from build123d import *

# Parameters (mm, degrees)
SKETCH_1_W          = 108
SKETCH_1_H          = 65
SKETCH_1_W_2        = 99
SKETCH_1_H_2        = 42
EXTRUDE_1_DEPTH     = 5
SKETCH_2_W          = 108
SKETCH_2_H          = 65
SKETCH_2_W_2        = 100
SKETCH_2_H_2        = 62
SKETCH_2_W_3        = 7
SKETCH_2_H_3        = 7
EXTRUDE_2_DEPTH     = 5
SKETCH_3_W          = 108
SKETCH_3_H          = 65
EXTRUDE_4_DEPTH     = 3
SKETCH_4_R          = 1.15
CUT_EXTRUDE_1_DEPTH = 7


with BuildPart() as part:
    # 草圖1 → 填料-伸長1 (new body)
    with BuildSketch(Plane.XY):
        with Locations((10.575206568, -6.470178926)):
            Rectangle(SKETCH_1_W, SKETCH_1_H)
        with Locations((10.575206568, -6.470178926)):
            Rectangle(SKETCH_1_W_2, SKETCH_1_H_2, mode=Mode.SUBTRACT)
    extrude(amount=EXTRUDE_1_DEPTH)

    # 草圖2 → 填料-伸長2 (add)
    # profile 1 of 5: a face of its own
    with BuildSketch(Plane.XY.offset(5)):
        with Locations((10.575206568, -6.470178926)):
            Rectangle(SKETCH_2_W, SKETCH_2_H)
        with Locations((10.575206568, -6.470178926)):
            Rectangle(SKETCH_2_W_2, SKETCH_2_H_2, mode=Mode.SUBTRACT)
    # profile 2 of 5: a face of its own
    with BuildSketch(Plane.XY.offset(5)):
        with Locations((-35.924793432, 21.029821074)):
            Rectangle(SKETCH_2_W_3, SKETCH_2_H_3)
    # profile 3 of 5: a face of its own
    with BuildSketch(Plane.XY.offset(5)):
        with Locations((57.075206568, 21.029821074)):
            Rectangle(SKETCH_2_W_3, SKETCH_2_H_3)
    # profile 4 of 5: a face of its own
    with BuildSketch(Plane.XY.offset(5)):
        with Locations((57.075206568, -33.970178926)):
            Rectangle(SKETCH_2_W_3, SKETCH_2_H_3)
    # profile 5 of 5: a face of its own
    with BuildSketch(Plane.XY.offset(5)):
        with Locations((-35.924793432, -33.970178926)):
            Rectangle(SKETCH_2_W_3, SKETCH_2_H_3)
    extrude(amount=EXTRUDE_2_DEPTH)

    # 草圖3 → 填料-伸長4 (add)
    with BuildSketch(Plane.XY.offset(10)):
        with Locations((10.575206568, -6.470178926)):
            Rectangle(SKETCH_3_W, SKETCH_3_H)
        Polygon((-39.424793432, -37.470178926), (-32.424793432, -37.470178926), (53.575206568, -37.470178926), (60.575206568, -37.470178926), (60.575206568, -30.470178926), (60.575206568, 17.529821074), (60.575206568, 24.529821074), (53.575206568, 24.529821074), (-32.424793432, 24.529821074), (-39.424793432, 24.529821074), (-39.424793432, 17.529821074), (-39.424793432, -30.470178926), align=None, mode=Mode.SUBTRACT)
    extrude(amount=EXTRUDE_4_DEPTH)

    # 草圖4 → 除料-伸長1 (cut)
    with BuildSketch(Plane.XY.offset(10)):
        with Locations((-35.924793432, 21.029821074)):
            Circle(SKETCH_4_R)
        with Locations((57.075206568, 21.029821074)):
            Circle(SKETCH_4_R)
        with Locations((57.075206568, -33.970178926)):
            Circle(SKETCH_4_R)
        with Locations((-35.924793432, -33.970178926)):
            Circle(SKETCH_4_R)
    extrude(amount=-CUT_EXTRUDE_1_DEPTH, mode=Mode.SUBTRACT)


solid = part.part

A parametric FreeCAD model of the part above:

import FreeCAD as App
import Part
import Sketcher
Q = App.Units.Quantity

doc = App.newDocument("Part")
body = doc.addObject("PartDesign::Body", "Body")

# Sketch on XY plane
sketch1 = body.newObject("Sketcher::SketchObject", "Sketch")
sketch1.AttachmentSupport = (doc.getObject("XY_Plane"), [""])
sketch1.MapMode = "FlatFace"
sketch1.addGeometry([
    Part.LineSegment(App.Vector(-43.424793, 26.029821, 0), App.Vector(-43.424793, -38.970179, 0)),  # 0
    Part.LineSegment(App.Vector(-43.424793, -38.970179, 0), App.Vector(64.575207, -38.970179, 0)),  # 1
    Part.LineSegment(App.Vector(64.575207, -38.970179, 0), App.Vector(64.575207, 26.029821, 0)),  # 2
    Part.LineSegment(App.Vector(64.575207, 26.029821, 0), App.Vector(-43.424793, 26.029821, 0)),  # 3
    Part.LineSegment(App.Vector(60.075207, -27.470179, 0), App.Vector(-38.924793, -27.470179, 0)),  # 4
    Part.LineSegment(App.Vector(-38.924793, -27.470179, 0), App.Vector(-38.924793, 14.529821, 0)),  # 5
    Part.LineSegment(App.Vector(-38.924793, 14.529821, 0), App.Vector(60.075207, 14.529821, 0)),  # 6
    Part.LineSegment(App.Vector(60.075207, 14.529821, 0), App.Vector(60.075207, -27.470179, 0)),  # 7
], False)
sketch1.addConstraint([
    Sketcher.Constraint("Coincident", 0, 2, 1, 1),
    Sketcher.Constraint("Coincident", 1, 2, 2, 1),
    Sketcher.Constraint("Coincident", 2, 2, 3, 1),
    Sketcher.Constraint("Coincident", 3, 2, 0, 1),
    Sketcher.Constraint("Coincident", 4, 2, 5, 1),
    Sketcher.Constraint("Coincident", 5, 2, 6, 1),
    Sketcher.Constraint("Coincident", 6, 2, 7, 1),
    Sketcher.Constraint("Coincident", 7, 2, 4, 1),
    Sketcher.Constraint("Vertical", 0),
    Sketcher.Constraint("Horizontal", 1),
    Sketcher.Constraint("Vertical", 2),
    Sketcher.Constraint("Horizontal", 3),
    Sketcher.Constraint("Horizontal", 4),
    Sketcher.Constraint("Vertical", 5),
    Sketcher.Constraint("Horizontal", 6),
    Sketcher.Constraint("Vertical", 7),
    Sketcher.Constraint("DistanceX", 1, 1, 1, 2, Q("108 mm")),
    Sketcher.Constraint("DistanceX", 4, 2, 4, 1, Q("99 mm")),
    Sketcher.Constraint("DistanceY", 0, 2, 0, 1, Q("65 mm")),
    Sketcher.Constraint("DistanceY", 5, 1, 5, 2, Q("42 mm")),
    Sketcher.Constraint("DistanceX", 0, 2, 4, 2, Q("4.5 mm")),
    Sketcher.Constraint("DistanceY", 0, 2, 4, 2, Q("11.5 mm")),
    Sketcher.Constraint("DistanceY", 0, 2, -1, 1, Q("38.970179 mm")),
    Sketcher.Constraint("DistanceX", 0, 2, -1, 1, Q("43.424793 mm")),
])
pad1 = body.newObject("PartDesign::Pad", "Pad")
pad1.Profile = sketch1
pad1.Length = 5

# Sketch on XY plane
sketch2 = body.newObject("Sketcher::SketchObject", "Sketch001")
sketch2.AttachmentSupport = (doc.getObject("XY_Plane"), [""])
sketch2.MapMode = "FlatFace"
sketch2.AttachmentOffset = App.Placement(App.Vector(0, 0, 5), App.Rotation())
sketch2.addGeometry([
    Part.LineSegment(App.Vector(-43.424793, 26.029821, 0), App.Vector(-43.424793, -38.970179, 0)),  # 0
    Part.LineSegment(App.Vector(-43.424793, -38.970179, 0), App.Vector(64.575207, -38.970179, 0)),  # 1
    Part.LineSegment(App.Vector(64.575207, -38.970179, 0), App.Vector(64.575207, 26.029821, 0)),  # 2
    Part.LineSegment(App.Vector(64.575207, 26.029821, 0), App.Vector(-43.424793, 26.029821, 0)),  # 3
    Part.LineSegment(App.Vector(53.575207, -37.470179, 0), App.Vector(-32.424793, -37.470179, 0)),  # 4
    Part.LineSegment(App.Vector(-32.424793, -37.470179, 0), App.Vector(-32.424793, -30.470179, 0)),  # 5
    Part.LineSegment(App.Vector(-32.424793, -30.470179, 0), App.Vector(-39.424793, -30.470179, 0)),  # 6
    Part.LineSegment(App.Vector(-39.424793, -30.470179, 0), App.Vector(-39.424793, 17.529821, 0)),  # 7
    Part.LineSegment(App.Vector(-39.424793, 17.529821, 0), App.Vector(-32.424793, 17.529821, 0)),  # 8
    Part.LineSegment(App.Vector(-32.424793, 17.529821, 0), App.Vector(-32.424793, 24.529821, 0)),  # 9
    Part.LineSegment(App.Vector(-32.424793, 24.529821, 0), App.Vector(53.575207, 24.529821, 0)),  # 10
    Part.LineSegment(App.Vector(53.575207, 24.529821, 0), App.Vector(53.575207, 17.529821, 0)),  # 11
    Part.LineSegment(App.Vector(53.575207, 17.529821, 0), App.Vector(60.575207, 17.529821, 0)),  # 12
    Part.LineSegment(App.Vector(60.575207, 17.529821, 0), App.Vector(60.575207, -30.470179, 0)),  # 13
    Part.LineSegment(App.Vector(60.575207, -30.470179, 0), App.Vector(53.575207, -30.470179, 0)),  # 14
    Part.LineSegment(App.Vector(53.575207, -30.470179, 0), App.Vector(53.575207, -37.470179, 0)),  # 15
], False)
sketch2.addConstraint([
    Sketcher.Constraint("Coincident", 0, 2, 1, 1),
    Sketcher.Constraint("Coincident", 1, 2, 2, 1),
    Sketcher.Constraint("Coincident", 2, 2, 3, 1),
    Sketcher.Constraint("Coincident", 3, 2, 0, 1),
    Sketcher.Constraint("Coincident", 4, 2, 5, 1),
    Sketcher.Constraint("Coincident", 5, 2, 6, 1),
    Sketcher.Constraint("Coincident", 6, 2, 7, 1),
    Sketcher.Constraint("Coincident", 7, 2, 8, 1),
    Sketcher.Constraint("Coincident", 8, 2, 9, 1),
    Sketcher.Constraint("Coincident", 9, 2, 10, 1),
    Sketcher.Constraint("Coincident", 10, 2, 11, 1),
    Sketcher.Constraint("Coincident", 11, 2, 12, 1),
    Sketcher.Constraint("Coincident", 12, 2, 13, 1),
    Sketcher.Constraint("Coincident", 13, 2, 14, 1),
    Sketcher.Constraint("Coincident", 14, 2, 15, 1),
    Sketcher.Constraint("Coincident", 15, 2, 4, 1),
    Sketcher.Constraint("Vertical", 0),
    Sketcher.Constraint("Horizontal", 1),
    Sketcher.Constraint("Vertical", 2),
    Sketcher.Constraint("Horizontal", 3),
    Sketcher.Constraint("Horizontal", 4),
    Sketcher.Constraint("Vertical", 5),
    Sketcher.Constraint("Horizontal", 6),
    Sketcher.Constraint("Vertical", 7),
    Sketcher.Constraint("Horizontal", 8),
    Sketcher.Constraint("Vertical", 9),
    Sketcher.Constraint("Horizontal", 10),
    Sketcher.Constraint("Vertical", 11),
    Sketcher.Constraint("Horizontal", 12),
    Sketcher.Constraint("Vertical", 13),
    Sketcher.Constraint("Horizontal", 14),
    Sketcher.Constraint("Vertical", 15),
    Sketcher.Constraint("Horizontal", 8, 2, 11, 2),
    Sketcher.Constraint("Horizontal", 6, 2, 13, 2),
    Sketcher.Constraint("Vertical", 5, 2, 8, 2),
    Sketcher.Constraint("Vertical", 11, 2, 14, 2),
    Sketcher.Constraint("Equal", 8, 12),
    Sketcher.Constraint("Equal", 14, 5),
    Sketcher.Constraint("Equal", 5, 9),
    Sketcher.Constraint("DistanceX", 1, 1, 1, 2, Q("108 mm")),
    Sketcher.Constraint("DistanceX", 4, 2, 4, 1, Q("86 mm")),
    Sketcher.Constraint("DistanceX", 6, 2, 6, 1, Q("7 mm")),
    Sketcher.Constraint("DistanceY", 0, 2, 0, 1, Q("65 mm")),
    Sketcher.Constraint("DistanceY", 7, 1, 7, 2, Q("48 mm")),
    Sketcher.Constraint("DistanceX", 0, 2, 4, 2, Q("11 mm")),
    Sketcher.Constraint("DistanceY", 0, 2, 4, 2, Q("1.5 mm")),
    Sketcher.Constraint("DistanceY", 0, 2, -1, 1, Q("38.970179 mm")),
    Sketcher.Constraint("DistanceX", 0, 2, -1, 1, Q("43.424793 mm")),
])
pad2 = body.newObject("PartDesign::Pad", "Pad001")
pad2.Profile = sketch2
pad2.Length = 5

# Sketch on XY plane
sketch3 = body.newObject("Sketcher::SketchObject", "Sketch002")
sketch3.AttachmentSupport = (doc.getObject("XY_Plane"), [""])
sketch3.MapMode = "FlatFace"
sketch3.AttachmentOffset = App.Placement(App.Vector(0, 0, 10), App.Rotation())
sketch3.addGeometry([
    Part.LineSegment(App.Vector(-43.424793, 26.029821, 0), App.Vector(-43.424793, -38.970179, 0)),  # 0
    Part.LineSegment(App.Vector(-43.424793, -38.970179, 0), App.Vector(64.575207, -38.970179, 0)),  # 1
    Part.LineSegment(App.Vector(64.575207, -38.970179, 0), App.Vector(64.575207, 26.029821, 0)),  # 2
    Part.LineSegment(App.Vector(64.575207, 26.029821, 0), App.Vector(-43.424793, 26.029821, 0)),  # 3
    Part.LineSegment(App.Vector(60.575207, -37.470179, 0), App.Vector(-39.424793, -37.470179, 0)),  # 4
    Part.LineSegment(App.Vector(-39.424793, -37.470179, 0), App.Vector(-39.424793, 24.529821, 0)),  # 5
    Part.LineSegment(App.Vector(-39.424793, 24.529821, 0), App.Vector(60.575207, 24.529821, 0)),  # 6
    Part.LineSegment(App.Vector(60.575207, 24.529821, 0), App.Vector(60.575207, -37.470179, 0)),  # 7
], False)
sketch3.addConstraint([
    Sketcher.Constraint("Coincident", 0, 2, 1, 1),
    Sketcher.Constraint("Coincident", 1, 2, 2, 1),
    Sketcher.Constraint("Coincident", 2, 2, 3, 1),
    Sketcher.Constraint("Coincident", 3, 2, 0, 1),
    Sketcher.Constraint("Coincident", 4, 2, 5, 1),
    Sketcher.Constraint("Coincident", 5, 2, 6, 1),
    Sketcher.Constraint("Coincident", 6, 2, 7, 1),
    Sketcher.Constraint("Coincident", 7, 2, 4, 1),
    Sketcher.Constraint("Vertical", 0),
    Sketcher.Constraint("Horizontal", 1),
    Sketcher.Constraint("Vertical", 2),
    Sketcher.Constraint("Horizontal", 3),
    Sketcher.Constraint("Horizontal", 4),
    Sketcher.Constraint("Vertical", 5),
    Sketcher.Constraint("Horizontal", 6),
    Sketcher.Constraint("Vertical", 7),
    Sketcher.Constraint("DistanceX", 1, 1, 1, 2, Q("108 mm")),
    Sketcher.Constraint("DistanceX", 4, 2, 4, 1, Q("100 mm")),
    Sketcher.Constraint("DistanceY", 0, 2, 0, 1, Q("65 mm")),
    Sketcher.Constraint("DistanceY", 5, 1, 5, 2, Q("62 mm")),
    Sketcher.Constraint("DistanceX", 0, 2, 4, 2, Q("4 mm")),
    Sketcher.Constraint("DistanceY", 0, 2, 4, 2, Q("1.5 mm")),
    Sketcher.Constraint("DistanceY", 0, 2, -1, 1, Q("38.970179 mm")),
    Sketcher.Constraint("DistanceX", 0, 2, -1, 1, Q("43.424793 mm")),
])
pad3 = body.newObject("PartDesign::Pad", "Pad002")
pad3.Profile = sketch3
pad3.Length = 3

# Sketch on XY plane
sketch4 = body.newObject("Sketcher::SketchObject", "Sketch003")
sketch4.AttachmentSupport = (doc.getObject("XY_Plane"), [""])
sketch4.MapMode = "FlatFace"
sketch4.AttachmentOffset = App.Placement(App.Vector(0, 0, 10), App.Rotation())
sketch4.addGeometry([
    Part.Circle(App.Vector(-35.924793, 21.029821, 0), App.Vector(0, 0, 1), 1.15),
    Part.Circle(App.Vector(57.075207, 21.029821, 0), App.Vector(0, 0, 1), 1.15),
    Part.Circle(App.Vector(57.075207, -33.970179, 0), App.Vector(0, 0, 1), 1.15),
    Part.Circle(App.Vector(-35.924793, -33.970179, 0), App.Vector(0, 0, 1), 1.15),
], False)
sketch4.addConstraint([
    Sketcher.Constraint("Equal", 0, 1),
    Sketcher.Constraint("Equal", 1, 2),
    Sketcher.Constraint("Equal", 2, 3),
    Sketcher.Constraint("Horizontal", 0, 3, 1, 3),
    Sketcher.Constraint("Horizontal", 2, 3, 3, 3),
    Sketcher.Constraint("Vertical", 1, 3, 2, 3),
    Sketcher.Constraint("Vertical", 0, 3, 3, 3),
    Sketcher.Constraint("Diameter", 0, Q("2.3 mm")),
    Sketcher.Constraint("DistanceX", 0, 3, 1, 3, Q("93 mm")),
    Sketcher.Constraint("DistanceY", 2, 3, 1, 3, Q("55 mm")),
    Sketcher.Constraint("DistanceY", -1, 1, 0, 3, Q("21.029821 mm")),
    Sketcher.Constraint("DistanceX", 0, 3, -1, 1, Q("35.924793 mm")),
])
pocket1 = body.newObject("PartDesign::Pocket", "Pocket")
pocket1.Profile = sketch4
pocket1.Length = 7

doc.recompute()
